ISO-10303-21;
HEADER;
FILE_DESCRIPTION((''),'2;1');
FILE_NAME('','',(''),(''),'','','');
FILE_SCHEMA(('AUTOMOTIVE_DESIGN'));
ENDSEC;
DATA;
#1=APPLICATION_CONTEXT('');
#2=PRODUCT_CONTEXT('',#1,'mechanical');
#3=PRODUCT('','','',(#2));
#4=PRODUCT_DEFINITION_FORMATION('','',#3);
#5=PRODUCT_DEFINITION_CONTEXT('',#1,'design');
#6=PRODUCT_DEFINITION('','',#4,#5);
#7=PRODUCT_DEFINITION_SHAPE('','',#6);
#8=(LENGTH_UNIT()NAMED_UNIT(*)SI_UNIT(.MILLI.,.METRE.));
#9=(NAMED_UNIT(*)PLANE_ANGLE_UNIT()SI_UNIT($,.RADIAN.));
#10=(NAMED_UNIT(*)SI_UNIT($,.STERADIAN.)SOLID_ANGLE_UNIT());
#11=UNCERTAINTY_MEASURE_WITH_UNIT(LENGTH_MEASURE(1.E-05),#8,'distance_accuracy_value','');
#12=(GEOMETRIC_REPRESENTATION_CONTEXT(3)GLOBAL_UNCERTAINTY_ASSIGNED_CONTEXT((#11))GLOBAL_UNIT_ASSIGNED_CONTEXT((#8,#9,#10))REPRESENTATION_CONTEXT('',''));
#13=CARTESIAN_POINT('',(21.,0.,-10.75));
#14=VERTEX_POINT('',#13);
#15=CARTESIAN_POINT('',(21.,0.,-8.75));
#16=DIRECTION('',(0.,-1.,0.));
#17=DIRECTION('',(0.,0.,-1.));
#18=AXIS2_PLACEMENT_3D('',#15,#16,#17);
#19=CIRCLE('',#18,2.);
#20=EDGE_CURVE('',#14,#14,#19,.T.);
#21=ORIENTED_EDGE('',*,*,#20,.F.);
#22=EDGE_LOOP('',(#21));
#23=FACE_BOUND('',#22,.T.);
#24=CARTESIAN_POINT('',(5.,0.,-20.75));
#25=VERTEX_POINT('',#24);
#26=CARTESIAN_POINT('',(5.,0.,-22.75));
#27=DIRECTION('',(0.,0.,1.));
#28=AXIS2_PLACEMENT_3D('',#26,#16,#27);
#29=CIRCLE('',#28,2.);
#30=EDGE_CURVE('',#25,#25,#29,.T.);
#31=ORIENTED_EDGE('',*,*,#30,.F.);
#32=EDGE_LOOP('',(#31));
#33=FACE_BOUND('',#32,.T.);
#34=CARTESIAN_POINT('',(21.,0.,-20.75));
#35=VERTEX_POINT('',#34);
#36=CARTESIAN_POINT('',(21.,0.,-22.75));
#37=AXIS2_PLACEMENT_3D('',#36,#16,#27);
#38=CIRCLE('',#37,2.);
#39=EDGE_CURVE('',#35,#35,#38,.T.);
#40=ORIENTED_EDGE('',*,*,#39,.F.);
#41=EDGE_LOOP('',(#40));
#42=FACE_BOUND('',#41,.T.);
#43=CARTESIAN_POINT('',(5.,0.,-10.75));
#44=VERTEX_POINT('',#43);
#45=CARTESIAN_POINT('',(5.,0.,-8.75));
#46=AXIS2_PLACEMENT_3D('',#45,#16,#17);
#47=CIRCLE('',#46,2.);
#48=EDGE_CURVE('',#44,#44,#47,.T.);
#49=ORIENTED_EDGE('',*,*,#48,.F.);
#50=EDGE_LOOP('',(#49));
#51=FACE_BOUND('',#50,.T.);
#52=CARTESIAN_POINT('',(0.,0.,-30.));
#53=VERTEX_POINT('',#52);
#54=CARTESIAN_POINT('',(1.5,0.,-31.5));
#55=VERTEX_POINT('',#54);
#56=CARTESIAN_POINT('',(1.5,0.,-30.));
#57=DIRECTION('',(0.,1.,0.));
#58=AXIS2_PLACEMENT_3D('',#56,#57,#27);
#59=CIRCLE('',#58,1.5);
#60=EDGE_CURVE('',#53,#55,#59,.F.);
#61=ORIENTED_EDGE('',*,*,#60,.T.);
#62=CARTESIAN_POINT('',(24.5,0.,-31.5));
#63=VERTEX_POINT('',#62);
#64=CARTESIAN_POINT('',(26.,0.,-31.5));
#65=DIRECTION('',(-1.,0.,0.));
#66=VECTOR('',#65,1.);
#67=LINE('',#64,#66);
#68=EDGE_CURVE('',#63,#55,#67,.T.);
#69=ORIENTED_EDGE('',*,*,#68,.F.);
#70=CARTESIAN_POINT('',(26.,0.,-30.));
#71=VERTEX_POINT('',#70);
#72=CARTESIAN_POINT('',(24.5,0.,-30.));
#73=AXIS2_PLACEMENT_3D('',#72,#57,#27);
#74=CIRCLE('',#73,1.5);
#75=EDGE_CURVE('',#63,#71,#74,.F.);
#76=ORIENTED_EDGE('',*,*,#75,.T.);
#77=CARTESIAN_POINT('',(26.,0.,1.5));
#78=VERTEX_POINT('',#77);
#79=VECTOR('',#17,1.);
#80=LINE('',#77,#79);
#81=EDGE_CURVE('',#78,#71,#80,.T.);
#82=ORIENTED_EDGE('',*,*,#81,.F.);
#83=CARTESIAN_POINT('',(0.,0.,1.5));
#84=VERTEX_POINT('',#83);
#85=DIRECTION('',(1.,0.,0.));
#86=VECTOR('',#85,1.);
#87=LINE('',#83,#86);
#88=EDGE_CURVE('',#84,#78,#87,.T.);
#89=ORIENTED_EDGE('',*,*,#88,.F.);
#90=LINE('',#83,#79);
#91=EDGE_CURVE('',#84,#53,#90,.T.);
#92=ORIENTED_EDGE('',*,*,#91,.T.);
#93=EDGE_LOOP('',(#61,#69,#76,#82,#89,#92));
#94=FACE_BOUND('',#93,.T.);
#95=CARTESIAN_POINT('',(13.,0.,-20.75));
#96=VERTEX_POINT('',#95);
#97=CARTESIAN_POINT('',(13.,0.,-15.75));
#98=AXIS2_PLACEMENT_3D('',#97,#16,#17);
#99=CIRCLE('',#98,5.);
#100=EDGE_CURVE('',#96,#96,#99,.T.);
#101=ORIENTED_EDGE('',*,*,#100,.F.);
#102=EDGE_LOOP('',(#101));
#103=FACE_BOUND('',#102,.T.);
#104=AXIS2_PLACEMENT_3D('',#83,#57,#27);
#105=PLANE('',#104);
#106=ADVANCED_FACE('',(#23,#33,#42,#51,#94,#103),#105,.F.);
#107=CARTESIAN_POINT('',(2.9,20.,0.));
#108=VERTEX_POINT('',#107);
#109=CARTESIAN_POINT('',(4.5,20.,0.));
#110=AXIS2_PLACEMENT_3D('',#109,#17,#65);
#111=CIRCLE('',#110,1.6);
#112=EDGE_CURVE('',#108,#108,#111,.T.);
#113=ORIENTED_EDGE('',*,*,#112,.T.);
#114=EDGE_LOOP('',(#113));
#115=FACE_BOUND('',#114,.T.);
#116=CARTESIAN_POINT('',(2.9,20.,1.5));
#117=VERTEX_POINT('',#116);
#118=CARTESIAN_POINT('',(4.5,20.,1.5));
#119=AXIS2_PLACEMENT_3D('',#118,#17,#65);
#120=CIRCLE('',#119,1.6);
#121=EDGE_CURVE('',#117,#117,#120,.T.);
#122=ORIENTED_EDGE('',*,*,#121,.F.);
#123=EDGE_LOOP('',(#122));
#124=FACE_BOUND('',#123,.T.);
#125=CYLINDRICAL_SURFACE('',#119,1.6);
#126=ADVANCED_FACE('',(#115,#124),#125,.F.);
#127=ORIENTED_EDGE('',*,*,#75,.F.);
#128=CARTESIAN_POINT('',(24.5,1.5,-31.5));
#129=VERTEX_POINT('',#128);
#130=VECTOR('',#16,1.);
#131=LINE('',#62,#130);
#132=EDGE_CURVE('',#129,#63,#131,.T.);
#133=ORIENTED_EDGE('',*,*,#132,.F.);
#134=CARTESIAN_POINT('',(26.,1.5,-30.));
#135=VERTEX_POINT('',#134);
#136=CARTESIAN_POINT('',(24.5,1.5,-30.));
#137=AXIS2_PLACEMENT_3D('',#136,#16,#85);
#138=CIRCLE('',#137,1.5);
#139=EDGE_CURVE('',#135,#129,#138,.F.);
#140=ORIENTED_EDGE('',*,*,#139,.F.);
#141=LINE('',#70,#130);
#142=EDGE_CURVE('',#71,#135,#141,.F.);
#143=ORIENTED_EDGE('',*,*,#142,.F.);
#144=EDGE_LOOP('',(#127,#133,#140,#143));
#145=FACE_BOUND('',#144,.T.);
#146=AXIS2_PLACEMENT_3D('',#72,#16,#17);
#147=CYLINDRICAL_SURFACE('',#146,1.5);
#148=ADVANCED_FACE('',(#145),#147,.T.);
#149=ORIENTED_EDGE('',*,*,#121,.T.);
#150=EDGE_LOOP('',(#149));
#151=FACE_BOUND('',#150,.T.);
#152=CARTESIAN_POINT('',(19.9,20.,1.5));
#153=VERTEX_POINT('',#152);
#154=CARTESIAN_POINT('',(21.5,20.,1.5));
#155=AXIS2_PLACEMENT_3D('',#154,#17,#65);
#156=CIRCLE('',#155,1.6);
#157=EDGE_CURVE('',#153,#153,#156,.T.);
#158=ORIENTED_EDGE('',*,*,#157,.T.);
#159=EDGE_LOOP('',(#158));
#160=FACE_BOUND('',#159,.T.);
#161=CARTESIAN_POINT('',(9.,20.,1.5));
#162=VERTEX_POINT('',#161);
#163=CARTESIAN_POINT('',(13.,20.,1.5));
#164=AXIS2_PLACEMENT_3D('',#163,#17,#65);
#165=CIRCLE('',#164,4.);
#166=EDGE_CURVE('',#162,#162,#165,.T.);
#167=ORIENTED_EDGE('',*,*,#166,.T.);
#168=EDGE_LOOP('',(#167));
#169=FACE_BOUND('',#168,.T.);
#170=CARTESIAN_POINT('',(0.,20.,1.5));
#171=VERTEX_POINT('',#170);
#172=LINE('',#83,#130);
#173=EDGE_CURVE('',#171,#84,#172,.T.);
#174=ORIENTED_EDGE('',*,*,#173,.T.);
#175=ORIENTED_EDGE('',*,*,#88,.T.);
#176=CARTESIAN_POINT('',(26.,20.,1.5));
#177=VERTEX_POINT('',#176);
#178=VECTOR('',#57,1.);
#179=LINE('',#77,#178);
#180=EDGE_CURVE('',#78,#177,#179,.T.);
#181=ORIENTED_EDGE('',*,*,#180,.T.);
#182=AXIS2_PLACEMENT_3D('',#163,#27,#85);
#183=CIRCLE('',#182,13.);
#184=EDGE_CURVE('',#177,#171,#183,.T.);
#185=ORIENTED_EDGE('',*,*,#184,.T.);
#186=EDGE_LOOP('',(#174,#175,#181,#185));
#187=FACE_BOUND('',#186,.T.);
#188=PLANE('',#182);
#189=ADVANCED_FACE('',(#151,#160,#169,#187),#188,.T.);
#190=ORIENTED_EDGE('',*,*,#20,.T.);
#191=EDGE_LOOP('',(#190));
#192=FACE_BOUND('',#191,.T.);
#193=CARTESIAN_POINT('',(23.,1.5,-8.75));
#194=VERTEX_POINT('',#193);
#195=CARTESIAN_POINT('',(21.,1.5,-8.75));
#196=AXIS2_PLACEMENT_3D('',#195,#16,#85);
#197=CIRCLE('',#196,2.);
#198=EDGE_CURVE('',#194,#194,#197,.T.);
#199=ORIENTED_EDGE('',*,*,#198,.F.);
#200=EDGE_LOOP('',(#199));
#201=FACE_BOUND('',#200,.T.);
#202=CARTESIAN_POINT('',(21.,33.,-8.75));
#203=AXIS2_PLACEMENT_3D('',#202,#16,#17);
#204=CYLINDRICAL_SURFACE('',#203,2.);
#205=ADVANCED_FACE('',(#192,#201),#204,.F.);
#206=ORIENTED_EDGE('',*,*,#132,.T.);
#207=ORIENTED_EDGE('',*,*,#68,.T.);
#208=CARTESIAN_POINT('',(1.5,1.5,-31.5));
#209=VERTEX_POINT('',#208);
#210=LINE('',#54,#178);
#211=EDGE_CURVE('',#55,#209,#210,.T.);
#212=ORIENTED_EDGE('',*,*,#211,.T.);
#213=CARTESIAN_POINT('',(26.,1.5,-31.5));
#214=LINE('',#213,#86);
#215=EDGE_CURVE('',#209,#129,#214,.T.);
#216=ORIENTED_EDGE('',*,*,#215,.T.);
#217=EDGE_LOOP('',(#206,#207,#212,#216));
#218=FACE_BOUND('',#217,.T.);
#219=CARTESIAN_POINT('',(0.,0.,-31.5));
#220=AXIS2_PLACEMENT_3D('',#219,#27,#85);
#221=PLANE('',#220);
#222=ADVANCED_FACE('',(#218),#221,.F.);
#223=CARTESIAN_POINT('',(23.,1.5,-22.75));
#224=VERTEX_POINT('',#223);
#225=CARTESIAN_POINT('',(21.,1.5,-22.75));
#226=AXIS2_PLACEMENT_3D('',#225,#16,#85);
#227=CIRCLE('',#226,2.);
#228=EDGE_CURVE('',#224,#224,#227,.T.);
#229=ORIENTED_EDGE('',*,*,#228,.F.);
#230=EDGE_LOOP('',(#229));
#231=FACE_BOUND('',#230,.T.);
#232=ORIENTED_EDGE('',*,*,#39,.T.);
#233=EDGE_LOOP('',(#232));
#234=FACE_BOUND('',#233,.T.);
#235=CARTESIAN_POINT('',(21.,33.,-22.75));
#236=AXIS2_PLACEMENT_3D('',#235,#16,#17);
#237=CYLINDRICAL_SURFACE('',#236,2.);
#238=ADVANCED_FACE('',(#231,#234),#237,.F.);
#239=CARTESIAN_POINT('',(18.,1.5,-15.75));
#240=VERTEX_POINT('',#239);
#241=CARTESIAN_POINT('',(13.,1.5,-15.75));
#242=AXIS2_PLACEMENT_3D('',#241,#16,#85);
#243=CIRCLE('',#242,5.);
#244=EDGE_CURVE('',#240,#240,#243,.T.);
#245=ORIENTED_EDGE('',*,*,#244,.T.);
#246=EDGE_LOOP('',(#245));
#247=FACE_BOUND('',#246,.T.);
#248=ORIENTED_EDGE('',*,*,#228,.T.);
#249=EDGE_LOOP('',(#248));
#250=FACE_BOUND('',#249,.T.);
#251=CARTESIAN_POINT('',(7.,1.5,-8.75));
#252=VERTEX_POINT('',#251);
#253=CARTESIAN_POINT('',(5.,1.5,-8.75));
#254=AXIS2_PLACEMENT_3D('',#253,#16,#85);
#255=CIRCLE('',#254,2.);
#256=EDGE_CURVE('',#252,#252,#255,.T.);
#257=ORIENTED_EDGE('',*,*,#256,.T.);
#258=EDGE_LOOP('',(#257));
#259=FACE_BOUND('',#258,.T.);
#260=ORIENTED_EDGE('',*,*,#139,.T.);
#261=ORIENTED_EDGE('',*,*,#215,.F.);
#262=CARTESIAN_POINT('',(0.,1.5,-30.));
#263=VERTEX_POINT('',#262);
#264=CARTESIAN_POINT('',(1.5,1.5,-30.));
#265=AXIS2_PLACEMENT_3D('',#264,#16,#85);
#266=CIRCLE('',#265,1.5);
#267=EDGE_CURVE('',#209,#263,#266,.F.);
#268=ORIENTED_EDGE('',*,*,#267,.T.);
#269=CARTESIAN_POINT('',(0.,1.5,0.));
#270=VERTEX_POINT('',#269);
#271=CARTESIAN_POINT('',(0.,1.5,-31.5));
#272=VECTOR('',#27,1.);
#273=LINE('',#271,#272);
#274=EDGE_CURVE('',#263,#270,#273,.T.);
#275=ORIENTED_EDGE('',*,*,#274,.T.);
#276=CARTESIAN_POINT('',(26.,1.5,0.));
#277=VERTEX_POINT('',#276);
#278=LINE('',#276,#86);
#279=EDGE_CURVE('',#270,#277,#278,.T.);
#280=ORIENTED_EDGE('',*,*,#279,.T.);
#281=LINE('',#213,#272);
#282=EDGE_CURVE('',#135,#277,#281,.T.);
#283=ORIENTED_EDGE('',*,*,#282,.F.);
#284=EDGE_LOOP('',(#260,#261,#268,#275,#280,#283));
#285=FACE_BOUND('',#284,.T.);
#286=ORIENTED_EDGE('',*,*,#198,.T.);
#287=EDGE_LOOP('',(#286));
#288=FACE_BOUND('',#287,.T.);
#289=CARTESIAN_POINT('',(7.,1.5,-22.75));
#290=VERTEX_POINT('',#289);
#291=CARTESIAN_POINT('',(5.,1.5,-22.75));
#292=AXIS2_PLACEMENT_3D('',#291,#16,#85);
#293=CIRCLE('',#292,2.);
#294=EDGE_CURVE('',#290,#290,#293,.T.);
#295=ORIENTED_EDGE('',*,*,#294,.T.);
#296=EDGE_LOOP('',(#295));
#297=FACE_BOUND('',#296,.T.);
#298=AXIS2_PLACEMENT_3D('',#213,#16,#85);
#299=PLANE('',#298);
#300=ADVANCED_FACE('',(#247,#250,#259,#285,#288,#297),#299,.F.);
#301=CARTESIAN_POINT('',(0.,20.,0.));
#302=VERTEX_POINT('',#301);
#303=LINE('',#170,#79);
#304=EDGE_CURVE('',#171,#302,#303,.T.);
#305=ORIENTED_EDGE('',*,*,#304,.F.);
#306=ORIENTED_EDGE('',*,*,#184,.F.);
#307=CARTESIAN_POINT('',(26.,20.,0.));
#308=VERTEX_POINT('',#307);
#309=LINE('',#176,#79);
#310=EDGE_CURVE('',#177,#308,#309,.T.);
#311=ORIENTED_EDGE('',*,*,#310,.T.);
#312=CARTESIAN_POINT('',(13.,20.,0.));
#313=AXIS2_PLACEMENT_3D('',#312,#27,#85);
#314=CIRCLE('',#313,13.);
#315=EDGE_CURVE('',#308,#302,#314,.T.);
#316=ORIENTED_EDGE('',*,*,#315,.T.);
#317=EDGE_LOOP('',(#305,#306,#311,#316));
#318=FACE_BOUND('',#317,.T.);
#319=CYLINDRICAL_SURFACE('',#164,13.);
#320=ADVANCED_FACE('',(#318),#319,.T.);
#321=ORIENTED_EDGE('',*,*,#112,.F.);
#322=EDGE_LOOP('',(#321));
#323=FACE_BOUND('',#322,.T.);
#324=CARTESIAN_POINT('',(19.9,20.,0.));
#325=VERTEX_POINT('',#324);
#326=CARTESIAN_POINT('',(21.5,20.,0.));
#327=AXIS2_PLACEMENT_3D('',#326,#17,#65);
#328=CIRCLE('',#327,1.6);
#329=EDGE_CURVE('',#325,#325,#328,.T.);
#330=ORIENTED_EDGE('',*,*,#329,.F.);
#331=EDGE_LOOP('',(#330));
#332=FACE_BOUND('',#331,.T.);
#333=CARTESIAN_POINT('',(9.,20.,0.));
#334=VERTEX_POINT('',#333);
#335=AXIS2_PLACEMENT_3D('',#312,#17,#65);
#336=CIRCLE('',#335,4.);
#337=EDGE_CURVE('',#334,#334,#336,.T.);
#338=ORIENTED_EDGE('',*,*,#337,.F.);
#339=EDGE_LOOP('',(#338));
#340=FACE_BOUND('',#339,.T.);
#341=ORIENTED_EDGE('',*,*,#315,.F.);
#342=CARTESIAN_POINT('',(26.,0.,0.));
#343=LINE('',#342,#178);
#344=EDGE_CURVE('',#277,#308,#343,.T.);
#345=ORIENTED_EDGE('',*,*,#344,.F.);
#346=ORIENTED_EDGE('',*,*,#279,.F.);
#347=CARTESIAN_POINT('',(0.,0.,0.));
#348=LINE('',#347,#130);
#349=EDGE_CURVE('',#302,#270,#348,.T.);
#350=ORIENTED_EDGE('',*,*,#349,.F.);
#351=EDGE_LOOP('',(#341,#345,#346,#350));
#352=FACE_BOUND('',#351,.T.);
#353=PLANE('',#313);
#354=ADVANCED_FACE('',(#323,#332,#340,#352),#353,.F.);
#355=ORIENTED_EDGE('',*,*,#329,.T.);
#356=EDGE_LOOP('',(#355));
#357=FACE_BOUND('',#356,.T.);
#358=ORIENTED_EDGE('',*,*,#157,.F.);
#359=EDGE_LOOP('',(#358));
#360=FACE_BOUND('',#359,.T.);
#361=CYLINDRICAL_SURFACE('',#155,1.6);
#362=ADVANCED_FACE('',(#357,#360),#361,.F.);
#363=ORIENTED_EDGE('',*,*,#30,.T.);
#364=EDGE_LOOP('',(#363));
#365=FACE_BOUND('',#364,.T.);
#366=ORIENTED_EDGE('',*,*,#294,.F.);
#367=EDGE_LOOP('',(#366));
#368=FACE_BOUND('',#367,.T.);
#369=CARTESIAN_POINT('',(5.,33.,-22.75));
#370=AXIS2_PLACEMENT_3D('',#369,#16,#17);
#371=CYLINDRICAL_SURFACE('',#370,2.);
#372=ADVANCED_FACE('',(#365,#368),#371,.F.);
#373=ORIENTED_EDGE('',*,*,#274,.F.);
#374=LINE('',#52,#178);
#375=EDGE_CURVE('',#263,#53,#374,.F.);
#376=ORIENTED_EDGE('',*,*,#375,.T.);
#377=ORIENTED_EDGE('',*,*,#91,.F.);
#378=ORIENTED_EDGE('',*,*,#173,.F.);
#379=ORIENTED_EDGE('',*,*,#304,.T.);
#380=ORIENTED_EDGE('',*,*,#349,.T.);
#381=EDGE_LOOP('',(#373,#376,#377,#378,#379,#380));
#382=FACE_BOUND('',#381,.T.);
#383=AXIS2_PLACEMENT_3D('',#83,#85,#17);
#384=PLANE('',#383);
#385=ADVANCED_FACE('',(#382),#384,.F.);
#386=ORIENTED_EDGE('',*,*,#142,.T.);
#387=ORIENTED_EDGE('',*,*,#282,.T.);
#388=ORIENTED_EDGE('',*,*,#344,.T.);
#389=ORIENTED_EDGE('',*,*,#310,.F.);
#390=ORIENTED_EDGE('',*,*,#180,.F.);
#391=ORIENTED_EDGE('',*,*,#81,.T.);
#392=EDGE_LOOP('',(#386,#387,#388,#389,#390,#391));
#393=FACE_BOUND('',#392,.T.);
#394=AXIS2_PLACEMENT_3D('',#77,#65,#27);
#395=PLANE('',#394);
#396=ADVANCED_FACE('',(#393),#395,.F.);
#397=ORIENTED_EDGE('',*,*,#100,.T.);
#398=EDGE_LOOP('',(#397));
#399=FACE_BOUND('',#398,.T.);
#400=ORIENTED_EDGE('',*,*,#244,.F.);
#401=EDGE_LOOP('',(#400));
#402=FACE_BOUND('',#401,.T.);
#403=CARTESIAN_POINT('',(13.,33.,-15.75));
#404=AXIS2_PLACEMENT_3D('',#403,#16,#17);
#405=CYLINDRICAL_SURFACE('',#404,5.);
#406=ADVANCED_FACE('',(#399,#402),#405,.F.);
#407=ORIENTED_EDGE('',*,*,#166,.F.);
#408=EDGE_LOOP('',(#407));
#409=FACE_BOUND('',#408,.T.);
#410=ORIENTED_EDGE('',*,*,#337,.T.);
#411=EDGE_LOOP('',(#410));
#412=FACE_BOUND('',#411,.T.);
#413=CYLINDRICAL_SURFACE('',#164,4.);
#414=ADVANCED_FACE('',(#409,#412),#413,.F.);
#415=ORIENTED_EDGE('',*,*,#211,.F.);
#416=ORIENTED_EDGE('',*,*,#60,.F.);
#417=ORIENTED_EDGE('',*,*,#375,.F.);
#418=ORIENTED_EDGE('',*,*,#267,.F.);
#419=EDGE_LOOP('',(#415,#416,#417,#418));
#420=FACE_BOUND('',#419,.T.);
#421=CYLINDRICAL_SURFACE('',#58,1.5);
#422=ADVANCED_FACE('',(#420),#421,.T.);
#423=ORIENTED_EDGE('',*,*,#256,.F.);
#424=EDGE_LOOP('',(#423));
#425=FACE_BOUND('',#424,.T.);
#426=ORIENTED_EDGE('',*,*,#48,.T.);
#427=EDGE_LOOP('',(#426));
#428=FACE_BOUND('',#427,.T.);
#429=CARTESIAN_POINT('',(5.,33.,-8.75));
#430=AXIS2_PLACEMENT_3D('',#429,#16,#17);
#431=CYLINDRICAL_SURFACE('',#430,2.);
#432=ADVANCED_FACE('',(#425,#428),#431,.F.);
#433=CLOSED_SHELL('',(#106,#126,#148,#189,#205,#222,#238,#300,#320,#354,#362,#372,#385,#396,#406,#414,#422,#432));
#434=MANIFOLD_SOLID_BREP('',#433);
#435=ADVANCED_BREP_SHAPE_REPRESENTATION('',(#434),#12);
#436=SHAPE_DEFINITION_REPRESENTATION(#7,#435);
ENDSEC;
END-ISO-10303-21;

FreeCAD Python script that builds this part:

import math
import FreeCAD as App
import Part
import Sketcher
from FreeCAD import Vector


def edges_at(feature, points):
    """Names of the edges that pass closest to the given points."""
    edges = feature.Shape.Edges
    near = lambda p: min(range(len(edges)), key=lambda i: edges[i].distToShape(Part.Vertex(*p))[0])
    return sorted({f"Edge{near(p) + 1}" for p in points})

doc = App.newDocument("Part")
body = doc.addObject("PartDesign::Body", "Body")

sketch1 = body.newObject("Sketcher::SketchObject", "Sketch")
sketch1.AttachmentSupport = (doc.getObject("XY_Plane"), [""])
sketch1.MapMode = "FlatFace"
sketch1.addGeometry([
    Part.LineSegment(Vector(0, 0, 0), Vector(26, 0, 0)),
    Part.LineSegment(Vector(26, 0, 0), Vector(26, 20, 0)),
    Part.ArcOfCircle(Part.Circle(Vector(13, 20, 0), Vector(0, 0, 1), 13), math.radians(0), math.radians(180)),
    Part.LineSegment(Vector(0, 20, 0), Vector(0, 0, 0)),
], False)
sketch1.addConstraint([
    Sketcher.Constraint("Coincident", 0, 2, 1, 1),
    Sketcher.Constraint("Tangent", 1, 2, 2, 1),
    Sketcher.Constraint("Tangent", 2, 2, 3, 1),
    Sketcher.Constraint("Coincident", 3, 2, 0, 1),
    Sketcher.Constraint("Horizontal", 0),
    Sketcher.Constraint("Vertical", 1),
    Sketcher.Constraint("Vertical", 3),
    Sketcher.Constraint("Coincident", 3, 2, -1, 1),
    Sketcher.Constraint("Radius", 2, 13.0),
    Sketcher.Constraint("DistanceY", 1, 1, 1, 2, 20.0),
])
pad1 = body.newObject("PartDesign::Pad", "Pad")
pad1.Profile = sketch1
pad1.Length = 1.5

sketch2 = body.newObject("Sketcher::SketchObject", "Sketch001")
sketch2.AttachmentSupport = (doc.getObject("XY_Plane"), [""])
sketch2.MapMode = "FlatFace"
sketch2.addGeometry([
    Part.Circle(Vector(13, 20, 0), Vector(0, 0, 1), 4),
    Part.Circle(Vector(21.5, 20, 0), Vector(0, 0, 1), 1.6),
    Part.Circle(Vector(4.5, 20, 0), Vector(0, 0, 1), 1.6),
], False)
sketch2.addConstraint([
    Sketcher.Constraint("Equal", 1, 2),
    Sketcher.Constraint("Horizontal", 0, 3, 1, 3),
    Sketcher.Constraint("Horizontal", 1, 3, 2, 3),
    Sketcher.Constraint("Diameter", 0, 8.0),
    Sketcher.Constraint("Diameter", 1, 3.2),
    Sketcher.Constraint("DistanceX", -1, 1, 0, 3, 13.0),
    Sketcher.Constraint("DistanceY", -1, 1, 0, 3, 20.0),
    Sketcher.Constraint("DistanceX", 2, 3, 1, 3, 17.0),
    Sketcher.Constraint("DistanceX", -1, 1, 1, 3, 21.5),
])
pocket1 = body.newObject("PartDesign::Pocket", "Pocket")
pocket1.Profile = sketch2
pocket1.Type = "ThroughAll"
pocket1.Reversed = True

sketch3 = body.newObject("Sketcher::SketchObject", "Sketch002")
sketch3.AttachmentSupport = (doc.getObject("XY_Plane"), [""])
sketch3.MapMode = "FlatFace"
sketch3.addGeometry([
    Part.LineSegment(Vector(26, 1.5, 0), Vector(26, 0, 0)),
    Part.LineSegment(Vector(26, 0, 0), Vector(0, 0, 0)),
    Part.LineSegment(Vector(0, 0, 0), Vector(0, 1.5, 0)),
    Part.LineSegment(Vector(0, 1.5, 0), Vector(26, 1.5, 0)),
], False)
sketch3.addConstraint([
    Sketcher.Constraint("Coincident", 0, 2, 1, 1),
    Sketcher.Constraint("Coincident", 1, 2, 2, 1),
    Sketcher.Constraint("Coincident", 2, 2, 3, 1),
    Sketcher.Constraint("Coincident", 3, 2, 0, 1),
    Sketcher.Constraint("Vertical", 0),
    Sketcher.Constraint("Horizontal", 1),
    Sketcher.Constraint("Vertical", 2),
    Sketcher.Constraint("Horizontal", 3),
    Sketcher.Constraint("Coincident", 1, 2, -1, 1),
    Sketcher.Constraint("DistanceX", 1, 2, 1, 1, 26.0),
    Sketcher.Constraint("DistanceY", 0, 2, 0, 1, 1.5),
])
pad2 = body.newObject("PartDesign::Pad", "Pad001")
pad2.Profile = sketch3
pad2.Length = 31.5
pad2.Reversed = True

sketch4 = body.newObject("Sketcher::SketchObject", "Sketch003")
sketch4.AttachmentSupport = (doc.getObject("XZ_Plane"), [""])
sketch4.MapMode = "FlatFace"
sketch4.addGeometry([
    Part.Circle(Vector(13, -15.8, 0), Vector(0, 0, 1), 5),
    Part.Circle(Vector(5, -8.8, 0), Vector(0, 0, 1), 2),
    Part.Circle(Vector(21, -8.8, 0), Vector(0, 0, 1), 2),
    Part.Circle(Vector(21, -22.8, 0), Vector(0, 0, 1), 2),
    Part.Circle(Vector(5, -22.8, 0), Vector(0, 0, 1), 2),
], False)
sketch4.addConstraint([
    Sketcher.Constraint("Equal", 1, 2),
    Sketcher.Constraint("Equal", 2, 3),
    Sketcher.Constraint("Equal", 3, 4),
    Sketcher.Constraint("Horizontal", 1, 3, 2, 3),
    Sketcher.Constraint("Horizontal", 3, 3, 4, 3),
    Sketcher.Constraint("Vertical", 2, 3, 3, 3),
    Sketcher.Constraint("Vertical", 1, 3, 4, 3),
    Sketcher.Constraint("Diameter", 0, 10.0),
    Sketcher.Constraint("Diameter", 1, 4.0),
    Sketcher.Constraint("DistanceX", -1, 1, 0, 3, 13.0),
    Sketcher.Constraint("DistanceX", -1, 1, 1, 3, 5.0),
    Sketcher.Constraint("DistanceX", -1, 1, 2, 3, 21.0),
    Sketcher.Constraint("DistanceY", 0, 3, 1, 3, 7.0),
    Sketcher.Constraint("DistanceY", 3, 3, 0, 3, 7.0),
    Sketcher.Constraint("DistanceY", 0, 3, -1, 1, 15.75),
])
pocket2 = body.newObject("PartDesign::Pocket", "Pocket001")
pocket2.Profile = sketch4
pocket2.Type = "ThroughAll"
doc.recompute()

fillet = body.newObject("PartDesign::Fillet", "Fillet")
fillet.Base = (pocket2, edges_at(pocket2, [(26, 0.75, -31.5), (0, 0.75, -31.5)]))
fillet.Radius = 1.5

doc.recompute()
